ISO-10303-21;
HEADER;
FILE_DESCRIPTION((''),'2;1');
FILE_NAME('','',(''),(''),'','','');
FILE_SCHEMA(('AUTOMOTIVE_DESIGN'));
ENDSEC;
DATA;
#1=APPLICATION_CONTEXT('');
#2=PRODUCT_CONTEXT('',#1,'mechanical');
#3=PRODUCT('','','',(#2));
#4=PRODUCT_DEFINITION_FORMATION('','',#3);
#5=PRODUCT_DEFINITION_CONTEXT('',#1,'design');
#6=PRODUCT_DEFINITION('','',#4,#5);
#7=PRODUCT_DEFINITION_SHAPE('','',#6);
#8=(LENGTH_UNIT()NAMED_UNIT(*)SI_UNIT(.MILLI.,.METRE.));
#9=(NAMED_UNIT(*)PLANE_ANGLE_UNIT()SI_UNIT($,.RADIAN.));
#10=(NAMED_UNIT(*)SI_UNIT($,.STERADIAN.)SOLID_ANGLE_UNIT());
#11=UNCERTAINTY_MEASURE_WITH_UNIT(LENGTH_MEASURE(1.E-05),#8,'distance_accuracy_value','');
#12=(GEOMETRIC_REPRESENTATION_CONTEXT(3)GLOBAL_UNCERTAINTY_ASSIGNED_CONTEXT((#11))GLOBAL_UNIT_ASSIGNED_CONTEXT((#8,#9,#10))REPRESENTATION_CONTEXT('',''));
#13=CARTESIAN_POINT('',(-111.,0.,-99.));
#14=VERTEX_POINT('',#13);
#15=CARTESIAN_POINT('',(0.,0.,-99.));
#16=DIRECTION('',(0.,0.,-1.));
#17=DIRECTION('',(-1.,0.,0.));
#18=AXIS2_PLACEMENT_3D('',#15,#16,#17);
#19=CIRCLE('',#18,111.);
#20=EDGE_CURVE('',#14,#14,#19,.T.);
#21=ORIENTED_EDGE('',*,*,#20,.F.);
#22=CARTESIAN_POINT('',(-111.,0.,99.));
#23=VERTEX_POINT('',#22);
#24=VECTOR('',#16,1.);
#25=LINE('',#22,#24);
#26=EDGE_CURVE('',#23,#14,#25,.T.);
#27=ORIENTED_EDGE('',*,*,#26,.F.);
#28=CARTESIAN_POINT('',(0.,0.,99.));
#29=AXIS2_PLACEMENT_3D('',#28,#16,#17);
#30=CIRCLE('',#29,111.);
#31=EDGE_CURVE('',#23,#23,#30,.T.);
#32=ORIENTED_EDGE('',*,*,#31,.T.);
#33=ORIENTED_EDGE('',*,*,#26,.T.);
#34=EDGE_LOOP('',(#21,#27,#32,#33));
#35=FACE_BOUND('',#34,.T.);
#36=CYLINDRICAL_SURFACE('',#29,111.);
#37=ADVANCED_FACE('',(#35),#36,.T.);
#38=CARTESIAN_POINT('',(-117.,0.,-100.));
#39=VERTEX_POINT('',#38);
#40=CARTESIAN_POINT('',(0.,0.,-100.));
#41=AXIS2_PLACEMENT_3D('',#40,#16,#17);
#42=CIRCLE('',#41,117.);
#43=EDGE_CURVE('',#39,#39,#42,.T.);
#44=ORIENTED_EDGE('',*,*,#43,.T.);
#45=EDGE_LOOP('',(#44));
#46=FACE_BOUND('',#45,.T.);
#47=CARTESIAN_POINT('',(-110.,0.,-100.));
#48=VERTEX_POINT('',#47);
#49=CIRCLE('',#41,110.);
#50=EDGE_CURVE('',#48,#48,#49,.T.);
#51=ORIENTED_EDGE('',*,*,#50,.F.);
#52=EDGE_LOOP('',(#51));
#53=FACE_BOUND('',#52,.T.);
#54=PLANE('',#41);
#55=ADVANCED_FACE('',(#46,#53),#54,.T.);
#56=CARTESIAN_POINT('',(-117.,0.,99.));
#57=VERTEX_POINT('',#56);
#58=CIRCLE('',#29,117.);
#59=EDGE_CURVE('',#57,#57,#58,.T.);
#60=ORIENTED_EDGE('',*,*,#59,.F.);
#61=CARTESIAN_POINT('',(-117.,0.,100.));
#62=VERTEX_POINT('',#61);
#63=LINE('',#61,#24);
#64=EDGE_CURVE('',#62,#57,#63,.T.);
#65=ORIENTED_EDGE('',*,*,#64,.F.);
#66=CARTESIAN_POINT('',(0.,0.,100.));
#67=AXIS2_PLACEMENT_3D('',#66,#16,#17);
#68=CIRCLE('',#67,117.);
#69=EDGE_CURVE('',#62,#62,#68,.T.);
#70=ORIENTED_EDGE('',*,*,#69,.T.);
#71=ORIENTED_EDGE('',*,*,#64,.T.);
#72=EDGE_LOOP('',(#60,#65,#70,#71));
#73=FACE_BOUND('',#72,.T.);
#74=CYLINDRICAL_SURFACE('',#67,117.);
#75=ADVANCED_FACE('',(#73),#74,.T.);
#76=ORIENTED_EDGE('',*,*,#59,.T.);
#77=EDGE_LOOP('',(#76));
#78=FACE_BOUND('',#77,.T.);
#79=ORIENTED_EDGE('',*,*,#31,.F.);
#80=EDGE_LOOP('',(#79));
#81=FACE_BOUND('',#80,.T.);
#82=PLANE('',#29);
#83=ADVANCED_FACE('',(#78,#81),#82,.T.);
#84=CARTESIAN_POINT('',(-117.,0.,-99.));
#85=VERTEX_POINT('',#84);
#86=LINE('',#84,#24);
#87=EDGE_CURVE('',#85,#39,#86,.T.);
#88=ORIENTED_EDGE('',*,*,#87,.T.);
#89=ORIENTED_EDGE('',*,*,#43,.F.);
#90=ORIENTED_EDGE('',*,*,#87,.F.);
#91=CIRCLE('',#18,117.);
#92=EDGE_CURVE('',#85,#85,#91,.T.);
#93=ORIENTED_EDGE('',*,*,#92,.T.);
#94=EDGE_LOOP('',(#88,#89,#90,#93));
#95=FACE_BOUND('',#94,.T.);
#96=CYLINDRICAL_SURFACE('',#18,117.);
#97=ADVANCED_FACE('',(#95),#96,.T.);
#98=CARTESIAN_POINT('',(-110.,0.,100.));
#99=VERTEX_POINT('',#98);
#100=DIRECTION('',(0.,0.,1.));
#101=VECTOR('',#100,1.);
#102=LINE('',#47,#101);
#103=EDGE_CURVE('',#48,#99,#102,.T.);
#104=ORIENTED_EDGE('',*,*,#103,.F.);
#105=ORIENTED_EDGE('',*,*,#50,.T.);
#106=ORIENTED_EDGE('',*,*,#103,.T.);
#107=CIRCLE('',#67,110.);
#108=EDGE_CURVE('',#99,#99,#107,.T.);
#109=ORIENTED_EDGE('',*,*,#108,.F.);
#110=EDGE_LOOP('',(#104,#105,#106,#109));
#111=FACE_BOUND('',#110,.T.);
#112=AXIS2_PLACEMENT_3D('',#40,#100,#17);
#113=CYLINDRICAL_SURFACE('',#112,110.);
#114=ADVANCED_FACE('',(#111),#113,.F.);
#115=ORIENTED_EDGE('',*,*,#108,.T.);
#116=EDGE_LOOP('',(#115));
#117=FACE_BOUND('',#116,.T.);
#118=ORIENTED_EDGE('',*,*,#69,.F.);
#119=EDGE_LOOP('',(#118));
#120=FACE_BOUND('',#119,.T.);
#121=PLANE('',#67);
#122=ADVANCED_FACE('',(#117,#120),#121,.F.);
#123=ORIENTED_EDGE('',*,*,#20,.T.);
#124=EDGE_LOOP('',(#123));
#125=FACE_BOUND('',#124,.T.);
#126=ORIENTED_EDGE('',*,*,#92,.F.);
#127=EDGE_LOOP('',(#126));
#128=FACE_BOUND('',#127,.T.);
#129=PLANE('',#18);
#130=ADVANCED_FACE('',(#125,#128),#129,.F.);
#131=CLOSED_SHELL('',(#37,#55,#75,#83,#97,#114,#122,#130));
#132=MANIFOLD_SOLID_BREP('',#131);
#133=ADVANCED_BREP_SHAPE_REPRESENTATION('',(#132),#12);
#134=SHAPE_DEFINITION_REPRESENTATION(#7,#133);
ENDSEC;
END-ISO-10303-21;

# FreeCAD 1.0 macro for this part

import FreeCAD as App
import Part
import Sketcher
from FreeCAD import Vector

doc = App.newDocument("Part")
body = doc.addObject("PartDesign::Body", "Body")

sketch1 = doc.addObject("Sketcher::SketchObject", "Sketch")
body.addObject(sketch1)
sketch1.AttachmentSupport = (doc.XZ_Plane, [""])
sketch1.MapMode = "FlatFace"
sketch1.addGeometry([
    Part.LineSegment(Vector(-110, 100, 0), Vector(-117, 100, 0)),
    Part.LineSegment(Vector(-117, 100, 0), Vector(-117, 99, 0)),
    Part.LineSegment(Vector(-117, 99, 0), Vector(-111, 99, 0)),
    Part.LineSegment(Vector(-111, 99, 0), Vector(-111, -99, 0)),
    Part.LineSegment(Vector(-111, -99, 0), Vector(-117, -99, 0)),
    Part.LineSegment(Vector(-117, -99, 0), Vector(-117, -100, 0)),
    Part.LineSegment(Vector(-117, -100, 0), Vector(-110, -100, 0)),
    Part.LineSegment(Vector(-110, -100, 0), Vector(-110, 100, 0)),
], False)
sketch1.addConstraint([
    Sketcher.Constraint("Coincident", 0, 2, 1, 1),
    Sketcher.Constraint("Coincident", 1, 2, 2, 1),
    Sketcher.Constraint("Coincident", 2, 2, 3, 1),
    Sketcher.Constraint("Coincident", 3, 2, 4, 1),
    Sketcher.Constraint("Coincident", 4, 2, 5, 1),
    Sketcher.Constraint("Coincident", 5, 2, 6, 1),
    Sketcher.Constraint("Coincident", 6, 2, 7, 1),
    Sketcher.Constraint("Coincident", 7, 2, 0, 1),
    Sketcher.Constraint("Horizontal", 0),
    Sketcher.Constraint("Vertical", 1),
    Sketcher.Constraint("Horizontal", 2),
    Sketcher.Constraint("Vertical", 3),
    Sketcher.Constraint("Horizontal", 4),
    Sketcher.Constraint("Vertical", 5),
    Sketcher.Constraint("Horizontal", 6),
    Sketcher.Constraint("Vertical", 7),
    Sketcher.Constraint("Symmetric", 1, 2, 4, 2, -1),
    Sketcher.Constraint("Equal", 1, 5),
    Sketcher.Constraint("DistanceX", 0, 2, 0, 1, 7.0),
    Sketcher.Constraint("DistanceX", 2, 1, 2, 2, 6.0),
    Sketcher.Constraint("DistanceY", 1, 2, 1, 1, 1.0),
    Sketcher.Constraint("DistanceY", 3, 2, 3, 1, 198.0),
    Sketcher.Constraint("DistanceX", 0, 2, -1, 1, 117.0),
])
revolution = doc.addObject("PartDesign::Revolution", "Revolution")
body.addObject(revolution)
revolution.Profile = sketch1
revolution.ReferenceAxis = (sketch1, ["V_Axis"])
revolution.Angle = 360

doc.recompute()
